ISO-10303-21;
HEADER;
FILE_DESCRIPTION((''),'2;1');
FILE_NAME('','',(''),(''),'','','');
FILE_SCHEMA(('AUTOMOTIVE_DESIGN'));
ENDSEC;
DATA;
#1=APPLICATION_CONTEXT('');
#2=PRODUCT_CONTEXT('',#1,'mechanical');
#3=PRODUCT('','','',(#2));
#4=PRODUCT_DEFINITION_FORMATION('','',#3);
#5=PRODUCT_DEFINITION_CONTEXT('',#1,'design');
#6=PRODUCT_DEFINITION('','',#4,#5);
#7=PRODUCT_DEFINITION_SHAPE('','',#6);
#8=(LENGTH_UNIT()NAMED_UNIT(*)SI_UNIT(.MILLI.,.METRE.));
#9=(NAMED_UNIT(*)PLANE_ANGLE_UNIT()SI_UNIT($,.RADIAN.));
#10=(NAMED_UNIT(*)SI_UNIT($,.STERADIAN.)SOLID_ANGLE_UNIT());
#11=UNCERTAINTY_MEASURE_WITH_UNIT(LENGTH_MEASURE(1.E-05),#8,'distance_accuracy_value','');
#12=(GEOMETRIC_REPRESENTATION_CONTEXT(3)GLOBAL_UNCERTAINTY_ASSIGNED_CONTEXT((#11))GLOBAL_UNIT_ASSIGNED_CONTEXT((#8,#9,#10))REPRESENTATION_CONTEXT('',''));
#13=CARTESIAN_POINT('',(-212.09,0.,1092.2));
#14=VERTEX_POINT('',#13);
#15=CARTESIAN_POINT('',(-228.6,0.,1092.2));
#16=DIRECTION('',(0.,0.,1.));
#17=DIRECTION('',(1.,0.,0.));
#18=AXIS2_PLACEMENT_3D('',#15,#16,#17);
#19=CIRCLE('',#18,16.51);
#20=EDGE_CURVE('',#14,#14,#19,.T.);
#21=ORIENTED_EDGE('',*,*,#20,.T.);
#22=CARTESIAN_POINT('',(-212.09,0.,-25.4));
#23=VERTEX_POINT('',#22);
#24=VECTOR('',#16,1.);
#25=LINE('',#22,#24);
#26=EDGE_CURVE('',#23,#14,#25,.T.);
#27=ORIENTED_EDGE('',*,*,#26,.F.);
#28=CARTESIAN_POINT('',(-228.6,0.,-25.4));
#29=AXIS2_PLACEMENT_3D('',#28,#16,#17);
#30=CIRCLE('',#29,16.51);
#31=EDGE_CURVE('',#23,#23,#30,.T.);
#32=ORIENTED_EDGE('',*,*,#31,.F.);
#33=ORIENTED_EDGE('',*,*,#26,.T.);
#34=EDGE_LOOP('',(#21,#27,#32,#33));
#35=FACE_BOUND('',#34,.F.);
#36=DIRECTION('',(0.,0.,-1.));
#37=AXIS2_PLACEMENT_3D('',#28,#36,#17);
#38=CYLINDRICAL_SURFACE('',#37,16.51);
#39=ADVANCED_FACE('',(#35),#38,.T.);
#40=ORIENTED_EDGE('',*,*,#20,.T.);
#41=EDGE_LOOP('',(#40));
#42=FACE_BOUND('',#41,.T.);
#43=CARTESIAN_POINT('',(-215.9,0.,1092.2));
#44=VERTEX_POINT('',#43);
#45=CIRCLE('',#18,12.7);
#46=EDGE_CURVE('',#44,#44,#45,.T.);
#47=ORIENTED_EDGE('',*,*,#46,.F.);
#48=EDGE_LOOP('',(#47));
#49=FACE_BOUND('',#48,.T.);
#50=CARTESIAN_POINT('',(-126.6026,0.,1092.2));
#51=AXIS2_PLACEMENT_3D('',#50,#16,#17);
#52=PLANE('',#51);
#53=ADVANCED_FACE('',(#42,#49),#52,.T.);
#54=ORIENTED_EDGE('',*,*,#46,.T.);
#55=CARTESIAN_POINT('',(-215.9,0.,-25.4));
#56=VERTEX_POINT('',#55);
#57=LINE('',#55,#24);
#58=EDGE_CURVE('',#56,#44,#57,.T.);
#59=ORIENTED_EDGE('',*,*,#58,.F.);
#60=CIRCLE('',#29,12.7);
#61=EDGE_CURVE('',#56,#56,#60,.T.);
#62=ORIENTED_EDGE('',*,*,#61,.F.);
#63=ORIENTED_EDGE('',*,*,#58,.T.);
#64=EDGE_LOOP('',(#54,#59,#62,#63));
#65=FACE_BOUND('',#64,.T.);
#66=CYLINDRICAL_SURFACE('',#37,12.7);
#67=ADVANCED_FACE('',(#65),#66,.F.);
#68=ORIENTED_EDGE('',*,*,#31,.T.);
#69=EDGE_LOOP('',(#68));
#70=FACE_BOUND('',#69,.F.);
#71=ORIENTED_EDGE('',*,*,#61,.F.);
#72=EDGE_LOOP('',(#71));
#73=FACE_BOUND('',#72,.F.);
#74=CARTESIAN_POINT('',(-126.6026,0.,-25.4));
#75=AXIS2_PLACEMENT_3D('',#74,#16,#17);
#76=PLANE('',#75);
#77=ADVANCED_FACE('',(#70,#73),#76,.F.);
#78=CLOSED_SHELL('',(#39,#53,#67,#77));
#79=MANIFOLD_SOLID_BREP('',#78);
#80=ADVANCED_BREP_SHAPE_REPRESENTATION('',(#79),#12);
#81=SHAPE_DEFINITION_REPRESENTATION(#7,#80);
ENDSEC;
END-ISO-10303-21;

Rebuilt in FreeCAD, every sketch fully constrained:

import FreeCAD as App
import Part
import Sketcher

V = App.Vector
Q = App.Units.Quantity

doc = App.newDocument("Part")
body = doc.addObject("PartDesign::Body", "Body")

sketch1 = body.newObject("Sketcher::SketchObject", "Sketch")
sketch1.AttachmentSupport = (doc.getObject("XY_Plane"), [""])
sketch1.MapMode = "FlatFace"
sketch1.AttachmentOffset = App.Placement(V(0, 0, -1 * 25.4), App.Rotation())
sketch1.addGeometry(Part.Circle(V(-229, 0, 0), V(0, 0, 1), 17), False)
sketch1.addGeometry(Part.Circle(V(-229, 0, 0), V(0, 0, 1), 13), False)
sketch1.addConstraint(Sketcher.Constraint("Coincident", 1, 3, 0, 3))
sketch1.addConstraint(Sketcher.Constraint("PointOnObject", 0, 3, -1))
sketch1.addConstraint(Sketcher.Constraint("Diameter", 1, Q("1 in")))
sketch1.addConstraint(Sketcher.Constraint("Diameter", 0, Q("1.3 in")))
sketch1.addConstraint(Sketcher.Constraint("DistanceX", 0, 3, -1, 1, Q("9 in")))
pad1 = body.newObject("PartDesign::Pad", "Pad")
pad1.Profile = sketch1
pad1.Length = Q("44 in")

doc.recompute()
